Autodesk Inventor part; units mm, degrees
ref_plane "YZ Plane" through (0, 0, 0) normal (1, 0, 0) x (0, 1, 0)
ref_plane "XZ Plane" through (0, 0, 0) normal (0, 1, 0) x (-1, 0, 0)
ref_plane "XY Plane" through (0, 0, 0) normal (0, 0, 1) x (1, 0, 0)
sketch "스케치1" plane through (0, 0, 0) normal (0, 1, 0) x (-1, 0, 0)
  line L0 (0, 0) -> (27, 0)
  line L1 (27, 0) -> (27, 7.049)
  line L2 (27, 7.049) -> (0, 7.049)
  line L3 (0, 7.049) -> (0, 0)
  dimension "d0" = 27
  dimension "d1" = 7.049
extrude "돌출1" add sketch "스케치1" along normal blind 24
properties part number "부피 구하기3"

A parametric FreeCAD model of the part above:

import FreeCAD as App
import Part
import Sketcher

doc = App.newDocument("Part")
body = doc.addObject("PartDesign::Body", "Body")

sketch1 = doc.addObject("Sketcher::SketchObject", "Sketch")
body.addObject(sketch1)
sketch1.AttachmentSupport = (doc.XZ_Plane, [""])
sketch1.MapMode = "FlatFace"
sketch1.addGeometry(Part.LineSegment(App.Vector(0, 7, 0), App.Vector(0, 0, 0)), False)
sketch1.addGeometry(Part.LineSegment(App.Vector(0, 0, 0), App.Vector(-27, 0, 0)), False)
sketch1.addGeometry(Part.LineSegment(App.Vector(-27, 0, 0), App.Vector(-27, 7, 0)), False)
sketch1.addGeometry(Part.LineSegment(App.Vector(-27, 7, 0), App.Vector(0, 7, 0)), False)
sketch1.addConstraint(Sketcher.Constraint("Coincident", 0, 2, 1, 1))
sketch1.addConstraint(Sketcher.Constraint("Coincident", 1, 2, 2, 1))
sketch1.addConstraint(Sketcher.Constraint("Coincident", 2, 2, 3, 1))
sketch1.addConstraint(Sketcher.Constraint("Coincident", 3, 2, 0, 1))
sketch1.addConstraint(Sketcher.Constraint("Vertical", 0))
sketch1.addConstraint(Sketcher.Constraint("Horizontal", 1))
sketch1.addConstraint(Sketcher.Constraint("Vertical", 2))
sketch1.addConstraint(Sketcher.Constraint("Horizontal", 3))
sketch1.addConstraint(Sketcher.Constraint("Coincident", 0, 2, -1, 1))
sketch1.addConstraint(Sketcher.Constraint("DistanceX", 1, 2, 1, 1, 27.0))
sketch1.addConstraint(Sketcher.Constraint("DistanceY", 0, 2, 0, 1, 7.049))
pad1 = doc.addObject("PartDesign::Pad", "Pad")
body.addObject(pad1)
pad1.Profile = sketch1
pad1.Length = 24
pad1.Reversed = True

doc.recompute()
